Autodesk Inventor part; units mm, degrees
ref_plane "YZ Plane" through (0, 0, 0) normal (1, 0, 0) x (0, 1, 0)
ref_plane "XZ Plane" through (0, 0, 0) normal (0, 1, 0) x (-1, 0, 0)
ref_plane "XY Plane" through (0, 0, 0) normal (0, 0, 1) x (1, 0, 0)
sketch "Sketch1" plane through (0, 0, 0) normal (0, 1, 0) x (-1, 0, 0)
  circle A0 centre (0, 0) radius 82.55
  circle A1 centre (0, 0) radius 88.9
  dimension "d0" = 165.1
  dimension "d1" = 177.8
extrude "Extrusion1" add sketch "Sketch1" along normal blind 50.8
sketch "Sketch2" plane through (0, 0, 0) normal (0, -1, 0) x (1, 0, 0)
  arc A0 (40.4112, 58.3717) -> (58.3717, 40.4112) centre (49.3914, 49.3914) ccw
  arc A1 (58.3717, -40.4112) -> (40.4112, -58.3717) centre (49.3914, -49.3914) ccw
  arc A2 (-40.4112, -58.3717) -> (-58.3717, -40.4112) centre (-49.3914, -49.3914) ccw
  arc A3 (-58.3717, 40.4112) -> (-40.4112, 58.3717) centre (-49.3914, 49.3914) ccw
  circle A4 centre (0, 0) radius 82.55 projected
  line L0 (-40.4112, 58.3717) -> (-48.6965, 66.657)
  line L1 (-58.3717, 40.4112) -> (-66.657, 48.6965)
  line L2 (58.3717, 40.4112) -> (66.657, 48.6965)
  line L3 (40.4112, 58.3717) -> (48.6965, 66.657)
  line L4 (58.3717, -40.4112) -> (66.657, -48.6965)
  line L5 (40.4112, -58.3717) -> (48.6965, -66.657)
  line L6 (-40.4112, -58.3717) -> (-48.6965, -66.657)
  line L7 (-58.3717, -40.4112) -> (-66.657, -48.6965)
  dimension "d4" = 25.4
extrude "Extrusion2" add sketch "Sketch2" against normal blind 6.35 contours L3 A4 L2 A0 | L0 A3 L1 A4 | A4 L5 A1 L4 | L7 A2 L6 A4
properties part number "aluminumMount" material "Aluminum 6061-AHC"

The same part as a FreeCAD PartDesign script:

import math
import FreeCAD as App
import Part
import Sketcher

V = App.Vector
Q = App.Units.Quantity

doc = App.newDocument("Part")
body = doc.addObject("PartDesign::Body", "Body")

# Sketch on XZ plane
sketch1 = body.newObject("Sketcher::SketchObject", "Sketch")
sketch1.AttachmentSupport = (doc.getObject("XZ_Plane"), [""])
sketch1.MapMode = "FlatFace"
sketch1.addGeometry(Part.Circle(V(0, 0, 0), V(0, 0, 1), 88.9), False)
sketch1.addGeometry(Part.Circle(V(0, 0, 0), V(0, 0, 1), 82.55), False)
sketch1.addConstraint(Sketcher.Constraint("Coincident", 0, 3, -1, 1))
sketch1.addConstraint(Sketcher.Constraint("Coincident", 1, 3, -1, 1))
sketch1.addConstraint(Sketcher.Constraint("Diameter", 0, Q("7 in")))
sketch1.addConstraint(Sketcher.Constraint("Diameter", 1, Q("6.5 in")))
pad1 = body.newObject("PartDesign::Pad", "Pad")
pad1.Profile = sketch1
pad1.Length = Q("2 in")
pad1.Reversed = True

# Sketch on XZ plane
sketch2 = body.newObject("Sketcher::SketchObject", "Sketch001")
sketch2.AttachmentSupport = (doc.getObject("XZ_Plane"), [""])
sketch2.MapMode = "FlatFace"
sketch2.addGeometry(Part.LineSegment(V(48.6965, 66.657, 0), V(40.4112, 58.3717, 0)), False)
sketch2.addGeometry(Part.ArcOfCircle(Part.Circle(V(49.3914, 49.3914, 0), V(0, 0, 1), 12.699991), math.radians(134.999681), math.radians(315.000319)), False)
sketch2.addGeometry(Part.LineSegment(V(58.3717, 40.4112, 0), V(66.657, 48.6965, 0)), False)
sketch2.addGeometry(Part.ArcOfCircle(Part.Circle(V(0, 0, 0), V(0, 0, 1), 82.55), math.radians(36.150124), math.radians(53.849876)), False)
sketch2.addGeometry(Part.LineSegment(V(-40.4112, 58.3717, 0), V(-48.6965, 66.657, 0)), False)
sketch2.addGeometry(Part.ArcOfCircle(Part.Circle(V(0, 0, 0), V(0, 0, 1), 82.55), math.radians(126.150124), math.radians(143.849876)), False)
sketch2.addGeometry(Part.LineSegment(V(-66.657, 48.6965, 0), V(-58.3717, 40.4112, 0)), False)
sketch2.addGeometry(Part.ArcOfCircle(Part.Circle(V(-49.3914, 49.3914, 0), V(0, 0, 1), 12.699991), math.radians(-135.000319), math.radians(45.000319)), False)
sketch2.addGeometry(Part.ArcOfCircle(Part.Circle(V(0, 0, 0), V(0, 0, 1), 82.55), math.radians(-53.849876), math.radians(-36.150124)), False)
sketch2.addGeometry(Part.LineSegment(V(66.657, -48.6965, 0), V(58.3717, -40.4112, 0)), False)
sketch2.addGeometry(Part.ArcOfCircle(Part.Circle(V(49.3914, -49.3914, 0), V(0, 0, 1), 12.699991), math.radians(44.999681), math.radians(225.000319)), False)
sketch2.addGeometry(Part.LineSegment(V(40.4112, -58.3717, 0), V(48.6965, -66.657, 0)), False)
sketch2.addGeometry(Part.LineSegment(V(-58.3717, -40.4112, 0), V(-66.657, -48.6965, 0)), False)
sketch2.addGeometry(Part.ArcOfCircle(Part.Circle(V(0, 0, 0), V(0, 0, 1), 82.55), math.radians(-143.849876), math.radians(-126.150124)), False)
sketch2.addGeometry(Part.LineSegment(V(-48.6965, -66.657, 0), V(-40.4112, -58.3717, 0)), False)
sketch2.addGeometry(Part.ArcOfCircle(Part.Circle(V(-49.3914, -49.3914, 0), V(0, 0, 1), 12.699991), math.radians(-45.000319), math.radians(135.000319)), False)
sketch2.addConstraint(Sketcher.Constraint("Tangent", 0, 2, 1, 1))
sketch2.addConstraint(Sketcher.Constraint("Tangent", 1, 2, 2, 1))
sketch2.addConstraint(Sketcher.Constraint("Coincident", 2, 2, 3, 1))
sketch2.addConstraint(Sketcher.Constraint("Coincident", 3, 2, 0, 1))
sketch2.addConstraint(Sketcher.Constraint("Coincident", 4, 2, 5, 1))
sketch2.addConstraint(Sketcher.Constraint("Coincident", 5, 2, 6, 1))
sketch2.addConstraint(Sketcher.Constraint("Tangent", 6, 2, 7, 1))
sketch2.addConstraint(Sketcher.Constraint("Tangent", 7, 2, 4, 1))
sketch2.addConstraint(Sketcher.Constraint("Coincident", 8, 2, 9, 1))
sketch2.addConstraint(Sketcher.Constraint("Tangent", 9, 2, 10, 1))
sketch2.addConstraint(Sketcher.Constraint("Tangent", 10, 2, 11, 1))
sketch2.addConstraint(Sketcher.Constraint("Coincident", 11, 2, 8, 1))
sketch2.addConstraint(Sketcher.Constraint("Coincident", 12, 2, 13, 1))
sketch2.addConstraint(Sketcher.Constraint("Coincident", 13, 2, 14, 1))
sketch2.addConstraint(Sketcher.Constraint("Tangent", 14, 2, 15, 1))
sketch2.addConstraint(Sketcher.Constraint("Tangent", 15, 2, 12, 1))
sketch2.addConstraint(Sketcher.Constraint("Coincident", 3, 3, -1, 1))
sketch2.addConstraint(Sketcher.Constraint("Coincident", 5, 3, -1, 1))
sketch2.addConstraint(Sketcher.Constraint("Coincident", 8, 3, -1, 1))
sketch2.addConstraint(Sketcher.Constraint("Coincident", 13, 3, -1, 1))
sketch2.addConstraint(Sketcher.Constraint("Equal", 3, 5))
sketch2.addConstraint(Sketcher.Constraint("Equal", 1, 7))
sketch2.addConstraint(Sketcher.Constraint("Equal", 5, 8))
sketch2.addConstraint(Sketcher.Constraint("Equal", 7, 10))
sketch2.addConstraint(Sketcher.Constraint("Equal", 8, 13))
sketch2.addConstraint(Sketcher.Constraint("Equal", 10, 15))
sketch2.addConstraint(Sketcher.Constraint("Symmetric", 7, 3, 10, 3, -1, 1))
sketch2.addConstraint(Sketcher.Constraint("Symmetric", 1, 3, 15, 3, -1, 1))
sketch2.addConstraint(Sketcher.Constraint("Symmetric", 1, 3, 7, 3, -2))
sketch2.addConstraint(Sketcher.Constraint("Parallel", 0, 2))
sketch2.addConstraint(Sketcher.Constraint("Perpendicular", 2, 4))
sketch2.addConstraint(Sketcher.Constraint("Parallel", 4, 6))
sketch2.addConstraint(Sketcher.Constraint("Parallel", 6, 9))
sketch2.addConstraint(Sketcher.Constraint("Parallel", 9, 11))
sketch2.addConstraint(Sketcher.Constraint("Perpendicular", 11, 12))
sketch2.addConstraint(Sketcher.Constraint("Parallel", 12, 14))
sketch2.addConstraint(Sketcher.Constraint("Horizontal", 3, 2, 4, 2))
sketch2.addConstraint(Sketcher.Constraint("Equal", 0, 2))
sketch2.addConstraint(Sketcher.Constraint("Radius", 1, Q("0.5 in")))
sketch2.addConstraint(Sketcher.Constraint("Radius", 3, Q("3.25 in")))
sketch2.addConstraint(Sketcher.Constraint("DistanceX", -1, 1, 0, 2, Q("1.591 in")))
pad2 = body.newObject("PartDesign::Pad", "Pad001")
pad2.Profile = sketch2
pad2.Length = Q("0.25 in")
pad2.Reversed = True

doc.recompute()
